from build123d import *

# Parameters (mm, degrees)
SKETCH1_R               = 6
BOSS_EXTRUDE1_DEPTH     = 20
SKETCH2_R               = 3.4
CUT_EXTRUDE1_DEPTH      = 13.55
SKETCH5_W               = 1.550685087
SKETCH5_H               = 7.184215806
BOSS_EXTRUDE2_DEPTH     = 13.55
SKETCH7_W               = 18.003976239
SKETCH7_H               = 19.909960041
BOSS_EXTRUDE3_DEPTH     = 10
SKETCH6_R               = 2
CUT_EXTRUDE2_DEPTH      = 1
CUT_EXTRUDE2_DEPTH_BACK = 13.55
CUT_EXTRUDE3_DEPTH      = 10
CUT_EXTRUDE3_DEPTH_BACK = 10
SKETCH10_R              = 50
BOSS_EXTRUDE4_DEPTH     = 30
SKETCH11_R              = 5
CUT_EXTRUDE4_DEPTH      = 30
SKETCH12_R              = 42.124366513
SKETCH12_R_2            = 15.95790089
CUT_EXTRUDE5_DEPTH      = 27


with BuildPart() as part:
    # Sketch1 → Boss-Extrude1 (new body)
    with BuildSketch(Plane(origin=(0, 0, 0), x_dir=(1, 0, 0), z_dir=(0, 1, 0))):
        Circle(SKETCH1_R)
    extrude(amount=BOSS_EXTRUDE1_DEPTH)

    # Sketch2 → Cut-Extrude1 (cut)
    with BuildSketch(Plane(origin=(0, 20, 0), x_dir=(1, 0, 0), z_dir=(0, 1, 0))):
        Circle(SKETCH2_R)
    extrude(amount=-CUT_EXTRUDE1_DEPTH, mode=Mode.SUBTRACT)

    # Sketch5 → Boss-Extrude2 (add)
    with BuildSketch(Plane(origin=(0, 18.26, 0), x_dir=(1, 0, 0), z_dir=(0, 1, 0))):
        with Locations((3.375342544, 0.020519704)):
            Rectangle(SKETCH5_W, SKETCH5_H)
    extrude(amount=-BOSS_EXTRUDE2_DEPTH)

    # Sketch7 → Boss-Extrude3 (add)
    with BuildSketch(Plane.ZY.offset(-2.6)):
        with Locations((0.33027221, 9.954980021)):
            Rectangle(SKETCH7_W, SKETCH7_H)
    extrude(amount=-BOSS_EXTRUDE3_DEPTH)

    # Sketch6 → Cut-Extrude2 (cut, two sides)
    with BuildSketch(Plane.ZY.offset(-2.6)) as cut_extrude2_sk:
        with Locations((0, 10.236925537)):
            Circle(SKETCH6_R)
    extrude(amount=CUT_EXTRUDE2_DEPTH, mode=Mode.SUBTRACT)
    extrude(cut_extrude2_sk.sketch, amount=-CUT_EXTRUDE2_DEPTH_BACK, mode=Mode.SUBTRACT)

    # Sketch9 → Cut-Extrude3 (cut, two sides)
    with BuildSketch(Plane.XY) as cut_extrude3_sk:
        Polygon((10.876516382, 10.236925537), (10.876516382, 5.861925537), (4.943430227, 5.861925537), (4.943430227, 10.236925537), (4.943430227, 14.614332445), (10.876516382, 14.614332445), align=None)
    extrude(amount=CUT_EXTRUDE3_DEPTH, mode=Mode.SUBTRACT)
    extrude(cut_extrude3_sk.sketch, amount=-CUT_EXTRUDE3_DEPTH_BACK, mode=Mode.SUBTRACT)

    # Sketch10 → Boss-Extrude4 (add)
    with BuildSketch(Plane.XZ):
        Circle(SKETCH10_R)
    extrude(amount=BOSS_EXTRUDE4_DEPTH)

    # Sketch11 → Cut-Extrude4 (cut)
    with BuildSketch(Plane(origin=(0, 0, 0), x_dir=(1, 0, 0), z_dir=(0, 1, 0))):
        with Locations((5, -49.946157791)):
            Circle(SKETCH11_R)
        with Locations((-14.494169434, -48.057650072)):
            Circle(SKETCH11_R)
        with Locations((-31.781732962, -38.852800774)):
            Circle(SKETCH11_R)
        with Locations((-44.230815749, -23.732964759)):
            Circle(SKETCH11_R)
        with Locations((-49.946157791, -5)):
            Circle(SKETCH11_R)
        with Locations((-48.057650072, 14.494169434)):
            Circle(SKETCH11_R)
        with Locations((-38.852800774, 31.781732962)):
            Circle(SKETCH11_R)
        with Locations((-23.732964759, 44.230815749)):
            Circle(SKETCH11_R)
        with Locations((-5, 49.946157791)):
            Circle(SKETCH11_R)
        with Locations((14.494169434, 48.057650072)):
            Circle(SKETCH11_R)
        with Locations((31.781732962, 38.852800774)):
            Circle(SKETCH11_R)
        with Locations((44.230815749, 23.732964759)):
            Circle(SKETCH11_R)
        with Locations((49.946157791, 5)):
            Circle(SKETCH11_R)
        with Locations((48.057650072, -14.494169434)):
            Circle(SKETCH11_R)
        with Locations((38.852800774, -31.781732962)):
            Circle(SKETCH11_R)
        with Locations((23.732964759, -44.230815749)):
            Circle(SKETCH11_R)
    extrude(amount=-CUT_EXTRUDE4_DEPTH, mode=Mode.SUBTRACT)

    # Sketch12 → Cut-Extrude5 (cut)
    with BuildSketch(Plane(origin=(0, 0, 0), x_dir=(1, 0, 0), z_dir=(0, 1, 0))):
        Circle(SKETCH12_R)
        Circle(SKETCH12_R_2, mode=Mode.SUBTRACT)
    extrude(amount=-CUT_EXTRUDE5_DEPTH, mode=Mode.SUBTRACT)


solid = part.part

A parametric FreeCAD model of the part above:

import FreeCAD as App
import Part
import Sketcher


def add_polygon(sketch, points):
    """Adds a closed chain of lines whose ends are joined by coincident constraints."""
    first, n = sketch.GeometryCount, len(points)
    for a, b in zip(points, points[1:] + points[:1]):
        sketch.addGeometry(Part.LineSegment(App.Vector(*a, 0), App.Vector(*b, 0)), False)
    for i in range(n):
        sketch.addConstraint(Sketcher.Constraint("Coincident", first + i, 2, first + (i + 1) % n, 1))

doc = App.newDocument("Part")
params = doc.addObject("Spreadsheet::Sheet", "Params")
for row, (alias, value) in enumerate([
    ("sketch1_diameter", "12 mm"),
    ("pad1_length", "20 mm"),
    ("sketch2_diameter", "6.8 mm"),
    ("pocket1_length", "13.55 mm"),
    ("pad2_length", "13.55 mm"),
    ("pad3_length", "10 mm"),
    ("sketch5_diameter", "4 mm"),
    ("pocket2_length", "1 mm"),
    ("pocket2_length2", "13.55 mm"),
    ("sketch7_diameter", "100 mm"),
    ("pad4_length", "30 mm"),
    ("sketch8_diameter", "10 mm"),
    ("pocket4_length", "30 mm"),
    ("pocket5_length", "27 mm"),
], start=1):
    params.set(f"A{row}", alias)
    params.set(f"B{row}", "=" + value)
    params.setAlias(f"B{row}", alias)

body = doc.addObject("PartDesign::Body", "Body")

sketch1 = body.newObject("Sketcher::SketchObject", "Sketch")
sketch1.AttachmentSupport = (doc.getObject("XZ_Plane"), [""])
sketch1.MapMode = "FlatFace"
sketch1.addGeometry(Part.Circle(App.Vector(0, 0, 0), App.Vector(0, 0, 1), 6), False)
sketch1.addConstraint(Sketcher.Constraint("Coincident", 0, 3, -1, 1))
sketch1.addConstraint(Sketcher.Constraint("Diameter", 0, 12.0))
sketch1.setExpression("Constraints[1]", "Params.sketch1_diameter")
pad1 = body.newObject("PartDesign::Pad", "Pad")
pad1.Profile = sketch1
pad1.setExpression("Length", "Params.pad1_length")
pad1.Reversed = True

sketch2 = body.newObject("Sketcher::SketchObject", "Sketch001")
sketch2.AttachmentSupport = (doc.getObject("XZ_Plane"), [""])
sketch2.MapMode = "FlatFace"
sketch2.AttachmentOffset = App.Placement(App.Vector(0, 0, -20), App.Rotation())
sketch2.addGeometry(Part.Circle(App.Vector(0, 0, 0), App.Vector(0, 0, 1), 3.4), False)
sketch2.addConstraint(Sketcher.Constraint("Coincident", 0, 3, -1, 1))
sketch2.addConstraint(Sketcher.Constraint("Diameter", 0, 6.8))
sketch2.setExpression("Constraints[1]", "Params.sketch2_diameter")
pocket1 = body.newObject("PartDesign::Pocket", "Pocket")
pocket1.Profile = sketch2
pocket1.setExpression("Length", "Params.pocket1_length")
pocket1.Reversed = True

sketch3 = body.newObject("Sketcher::SketchObject", "Sketch002")
sketch3.AttachmentSupport = (doc.getObject("XZ_Plane"), [""])
sketch3.MapMode = "FlatFace"
sketch3.AttachmentOffset = App.Placement(App.Vector(0, 0, -18.26), App.Rotation())
add_polygon(sketch3, [(2.6, -3.612628), (2.6, 3.571588), (4.150685, 3.571588), (4.150685, -3.612628)])
sketch3.addConstraint(Sketcher.Constraint("Vertical", 0))
sketch3.addConstraint(Sketcher.Constraint("Horizontal", 1))
sketch3.addConstraint(Sketcher.Constraint("Vertical", 2))
sketch3.addConstraint(Sketcher.Constraint("Horizontal", 3))
sketch3.addConstraint(Sketcher.Constraint("DistanceX", -1, 1, 0, 2, 2.6))
sketch3.addConstraint(Sketcher.Constraint("DistanceX", 1, 1, 1, 2, 1.550685))
sketch3.addConstraint(Sketcher.Constraint("DistanceY", 0, 1, 0, 2, 7.184216))
sketch3.addConstraint(Sketcher.Constraint("DistanceY", -1, 1, 0, 2, 3.571588))
pad2 = body.newObject("PartDesign::Pad", "Pad001")
pad2.Profile = sketch3
pad2.setExpression("Length", "Params.pad2_length")

sketch4 = body.newObject("Sketcher::SketchObject", "Sketch003")
sketch4.AttachmentSupport = (doc.getObject("YZ_Plane"), [""])
sketch4.MapMode = "FlatFace"
sketch4.AttachmentOffset = App.Placement(App.Vector(0, 0, 2.6), App.Rotation())
add_polygon(sketch4, [(19.90996, -8.671716), (0, -8.671716), (0, 9.33226), (19.90996, 9.33226)])
sketch4.addConstraint(Sketcher.Constraint("Horizontal", 0))
sketch4.addConstraint(Sketcher.Constraint("Vertical", 1))
sketch4.addConstraint(Sketcher.Constraint("Horizontal", 2))
sketch4.addConstraint(Sketcher.Constraint("Vertical", 3))
sketch4.addConstraint(Sketcher.Constraint("PointOnObject", 0, 2, -2))
sketch4.addConstraint(Sketcher.Constraint("DistanceX", 0, 2, 0, 1, 19.90996))
sketch4.addConstraint(Sketcher.Constraint("DistanceY", 1, 1, 1, 2, 18.003976))
sketch4.addConstraint(Sketcher.Constraint("DistanceY", -1, 1, 1, 2, 9.33226))
pad3 = body.newObject("PartDesign::Pad", "Pad002")
pad3.Profile = sketch4
pad3.setExpression("Length", "Params.pad3_length")

sketch5 = body.newObject("Sketcher::SketchObject", "Sketch004")
sketch5.AttachmentSupport = (doc.getObject("YZ_Plane"), [""])
sketch5.MapMode = "FlatFace"
sketch5.AttachmentOffset = App.Placement(App.Vector(0, 0, 2.6), App.Rotation())
sketch5.addGeometry(Part.Circle(App.Vector(10.236926, 0, 0), App.Vector(0, 0, 1), 2), False)
sketch5.addConstraint(Sketcher.Constraint("PointOnObject", 0, 3, -1))
sketch5.addConstraint(Sketcher.Constraint("Diameter", 0, 4.0))
sketch5.addConstraint(Sketcher.Constraint("DistanceX", -1, 1, 0, 3, 10.236926))
sketch5.setExpression("Constraints[1]", "Params.sketch5_diameter")
pocket2 = body.newObject("PartDesign::Pocket", "Pocket001")
pocket2.Profile = sketch5
pocket2.Type = "TwoLengths"
pocket2.setExpression("Length", "Params.pocket2_length")
pocket2.setExpression("Length2", "Params.pocket2_length2")

sketch6 = body.newObject("Sketcher::SketchObject", "Sketch005")
sketch6.AttachmentSupport = (doc.getObject("XY_Plane"), [""])
sketch6.MapMode = "FlatFace"
add_polygon(sketch6, [(10.876516, 5.861926), (10.876516, 14.614332), (4.94343, 14.614332), (4.94343, 5.861926)])
sketch6.addConstraint(Sketcher.Constraint("Vertical", 0))
sketch6.addConstraint(Sketcher.Constraint("Horizontal", 1))
sketch6.addConstraint(Sketcher.Constraint("Vertical", 2))
sketch6.addConstraint(Sketcher.Constraint("Horizontal", 3))
sketch6.addConstraint(Sketcher.Constraint("DistanceX", 1, 2, 1, 1, 5.933086))
sketch6.addConstraint(Sketcher.Constraint("DistanceY", 0, 1, 0, 2, 8.752407))
sketch6.addConstraint(Sketcher.Constraint("DistanceX", -1, 1, 1, 2, 4.94343))
sketch6.addConstraint(Sketcher.Constraint("DistanceY", -1, 1, 0, 2, 14.614332))
pocket3 = body.newObject("PartDesign::Pocket", "Pocket002")
pocket3.Profile = sketch6
pocket3.Type = "ThroughAll"
pocket3.Midplane = True

sketch7 = body.newObject("Sketcher::SketchObject", "Sketch006")
sketch7.AttachmentSupport = (doc.getObject("XZ_Plane"), [""])
sketch7.MapMode = "FlatFace"
sketch7.addGeometry(Part.Circle(App.Vector(0, 0, 0), App.Vector(0, 0, 1), 50), False)
sketch7.addConstraint(Sketcher.Constraint("Coincident", 0, 3, -1, 1))
sketch7.addConstraint(Sketcher.Constraint("Diameter", 0, 100.0))
sketch7.setExpression("Constraints[1]", "Params.sketch7_diameter")
pad4 = body.newObject("PartDesign::Pad", "Pad003")
pad4.Profile = sketch7
pad4.setExpression("Length", "Params.pad4_length")

sketch8 = body.newObject("Sketcher::SketchObject", "Sketch007")
sketch8.AttachmentSupport = (doc.getObject("XZ_Plane"), [""])
sketch8.MapMode = "FlatFace"
sketch8.addGeometry(Part.Circle(App.Vector(5, 49.946158, 0), App.Vector(0, 0, 1), 5), False)
sketch8.addGeometry(Part.Circle(App.Vector(-14.494169, 48.05765, 0), App.Vector(0, 0, 1), 5), False)
sketch8.addGeometry(Part.Circle(App.Vector(-31.781733, 38.852801, 0), App.Vector(0, 0, 1), 5), False)
sketch8.addGeometry(Part.Circle(App.Vector(-44.230816, 23.732965, 0), App.Vector(0, 0, 1), 5), False)
sketch8.addGeometry(Part.Circle(App.Vector(-49.946158, 5, 0), App.Vector(0, 0, 1), 5), False)
sketch8.addGeometry(Part.Circle(App.Vector(-48.05765, -14.494169, 0), App.Vector(0, 0, 1), 5), False)
sketch8.addGeometry(Part.Circle(App.Vector(-38.852801, -31.781733, 0), App.Vector(0, 0, 1), 5), False)
sketch8.addGeometry(Part.Circle(App.Vector(-23.732965, -44.230816, 0), App.Vector(0, 0, 1), 5), False)
sketch8.addGeometry(Part.Circle(App.Vector(-5, -49.946158, 0), App.Vector(0, 0, 1), 5), False)
sketch8.addGeometry(Part.Circle(App.Vector(14.494169, -48.05765, 0), App.Vector(0, 0, 1), 5), False)
sketch8.addGeometry(Part.Circle(App.Vector(31.781733, -38.852801, 0), App.Vector(0, 0, 1), 5), False)
sketch8.addGeometry(Part.Circle(App.Vector(44.230816, -23.732965, 0), App.Vector(0, 0, 1), 5), False)
sketch8.addGeometry(Part.Circle(App.Vector(49.946158, -5, 0), App.Vector(0, 0, 1), 5), False)
sketch8.addGeometry(Part.Circle(App.Vector(48.05765, 14.494169, 0), App.Vector(0, 0, 1), 5), False)
sketch8.addGeometry(Part.Circle(App.Vector(38.852801, 31.781733, 0), App.Vector(0, 0, 1), 5), False)
sketch8.addGeometry(Part.Circle(App.Vector(23.732965, 44.230816, 0), App.Vector(0, 0, 1), 5), False)
sketch8.addConstraint(Sketcher.Constraint("Equal", 0, 1))
sketch8.addConstraint(Sketcher.Constraint("Equal", 1, 2))
sketch8.addConstraint(Sketcher.Constraint("Equal", 2, 3))
sketch8.addConstraint(Sketcher.Constraint("Equal", 3, 4))
sketch8.addConstraint(Sketcher.Constraint("Equal", 4, 5))
sketch8.addConstraint(Sketcher.Constraint("Equal", 5, 6))
sketch8.addConstraint(Sketcher.Constraint("Equal", 6, 7))
sketch8.addConstraint(Sketcher.Constraint("Equal", 7, 8))
sketch8.addConstraint(Sketcher.Constraint("Equal", 8, 9))
sketch8.addConstraint(Sketcher.Constraint("Equal", 9, 10))
sketch8.addConstraint(Sketcher.Constraint("Equal", 10, 11))
sketch8.addConstraint(Sketcher.Constraint("Equal", 11, 12))
sketch8.addConstraint(Sketcher.Constraint("Equal", 12, 13))
sketch8.addConstraint(Sketcher.Constraint("Equal", 13, 14))
sketch8.addConstraint(Sketcher.Constraint("Equal", 14, 15))
sketch8.addConstraint(Sketcher.Constraint("Symmetric", 0, 3, 8, 3, -1, 1))
sketch8.addConstraint(Sketcher.Constraint("Symmetric", 1, 3, 9, 3, -1, 1))
sketch8.addConstraint(Sketcher.Constraint("Symmetric", 2, 3, 10, 3, -1, 1))
sketch8.addConstraint(Sketcher.Constraint("Symmetric", 3, 3, 11, 3, -1, 1))
sketch8.addConstraint(Sketcher.Constraint("Symmetric", 4, 3, 12, 3, -1, 1))
sketch8.addConstraint(Sketcher.Constraint("Symmetric", 5, 3, 13, 3, -1, 1))
sketch8.addConstraint(Sketcher.Constraint("Symmetric", 6, 3, 14, 3, -1, 1))
sketch8.addConstraint(Sketcher.Constraint("Symmetric", 7, 3, 15, 3, -1, 1))
sketch8.addConstraint(Sketcher.Constraint("Diameter", 0, 10.0))
sketch8.addConstraint(Sketcher.Constraint("DistanceX", -1, 1, 0, 3, 5.0))
sketch8.addConstraint(Sketcher.Constraint("DistanceY", -1, 1, 4, 3, 5.0))
sketch8.addConstraint(Sketcher.Constraint("DistanceY", -1, 1, 2, 3, 38.852801))
sketch8.addConstraint(Sketcher.Constraint("DistanceX", 6, 3, -1, 1, 38.852801))
sketch8.addConstraint(Sketcher.Constraint("DistanceX", 1, 3, -1, 1, 14.494169))
sketch8.addConstraint(Sketcher.Constraint("DistanceY", -1, 1, 1, 3, 48.05765))
sketch8.addConstraint(Sketcher.Constraint("DistanceX", 5, 3, -1, 1, 48.05765))
sketch8.addConstraint(Sketcher.Constraint("DistanceY", 5, 3, -1, 1, 14.494169))
sketch8.addConstraint(Sketcher.Constraint("DistanceX", 4, 3, 1, 3, 35.451988))
sketch8.addConstraint(Sketcher.Constraint("DistanceX", 3, 3, 7, 3, 20.497851))
sketch8.addConstraint(Sketcher.Constraint("DistanceY", 7, 3, 3, 3, 67.963781))
sketch8.addConstraint(Sketcher.Constraint("DistanceX", 2, 3, 7, 3, 8.048768))
sketch8.addConstraint(Sketcher.Constraint("DistanceY", 8, 3, 5, 3, 35.451988))
sketch8.addConstraint(Sketcher.Constraint("DistanceX", 7, 3, 11, 3, 67.963781))
sketch8.addConstraint(Sketcher.Constraint("DistanceY", 7, 3, 11, 3, 20.497851))
sketch8.addConstraint(Sketcher.Constraint("DistanceY", 6, 3, -1, 1, 31.781733))
sketch8.setExpression("Constraints[23]", "Params.sketch8_diameter")
pocket4 = body.newObject("PartDesign::Pocket", "Pocket003")
pocket4.Profile = sketch8
pocket4.setExpression("Length", "Params.pocket4_length")
pocket4.Reversed = True

sketch9 = body.newObject("Sketcher::SketchObject", "Sketch008")
sketch9.AttachmentSupport = (doc.getObject("XZ_Plane"), [""])
sketch9.MapMode = "FlatFace"
sketch9.addGeometry(Part.Circle(App.Vector(0, 0, 0), App.Vector(0, 0, 1), 42.124367), False)
sketch9.addGeometry(Part.Circle(App.Vector(0, 0, 0), App.Vector(0, 0, 1), 15.957901), False)
sketch9.addConstraint(Sketcher.Constraint("Coincident", 0, 3, -1, 1))
sketch9.addConstraint(Sketcher.Constraint("Coincident", 1, 3, -1, 1))
sketch9.addConstraint(Sketcher.Constraint("Diameter", 1, 31.915802))
sketch9.addConstraint(Sketcher.Constraint("Diameter", 0, 84.248733))
pocket5 = body.newObject("PartDesign::Pocket", "Pocket004")
pocket5.Profile = sketch9
pocket5.setExpression("Length", "Params.pocket5_length")
pocket5.Reversed = True

doc.recompute()
